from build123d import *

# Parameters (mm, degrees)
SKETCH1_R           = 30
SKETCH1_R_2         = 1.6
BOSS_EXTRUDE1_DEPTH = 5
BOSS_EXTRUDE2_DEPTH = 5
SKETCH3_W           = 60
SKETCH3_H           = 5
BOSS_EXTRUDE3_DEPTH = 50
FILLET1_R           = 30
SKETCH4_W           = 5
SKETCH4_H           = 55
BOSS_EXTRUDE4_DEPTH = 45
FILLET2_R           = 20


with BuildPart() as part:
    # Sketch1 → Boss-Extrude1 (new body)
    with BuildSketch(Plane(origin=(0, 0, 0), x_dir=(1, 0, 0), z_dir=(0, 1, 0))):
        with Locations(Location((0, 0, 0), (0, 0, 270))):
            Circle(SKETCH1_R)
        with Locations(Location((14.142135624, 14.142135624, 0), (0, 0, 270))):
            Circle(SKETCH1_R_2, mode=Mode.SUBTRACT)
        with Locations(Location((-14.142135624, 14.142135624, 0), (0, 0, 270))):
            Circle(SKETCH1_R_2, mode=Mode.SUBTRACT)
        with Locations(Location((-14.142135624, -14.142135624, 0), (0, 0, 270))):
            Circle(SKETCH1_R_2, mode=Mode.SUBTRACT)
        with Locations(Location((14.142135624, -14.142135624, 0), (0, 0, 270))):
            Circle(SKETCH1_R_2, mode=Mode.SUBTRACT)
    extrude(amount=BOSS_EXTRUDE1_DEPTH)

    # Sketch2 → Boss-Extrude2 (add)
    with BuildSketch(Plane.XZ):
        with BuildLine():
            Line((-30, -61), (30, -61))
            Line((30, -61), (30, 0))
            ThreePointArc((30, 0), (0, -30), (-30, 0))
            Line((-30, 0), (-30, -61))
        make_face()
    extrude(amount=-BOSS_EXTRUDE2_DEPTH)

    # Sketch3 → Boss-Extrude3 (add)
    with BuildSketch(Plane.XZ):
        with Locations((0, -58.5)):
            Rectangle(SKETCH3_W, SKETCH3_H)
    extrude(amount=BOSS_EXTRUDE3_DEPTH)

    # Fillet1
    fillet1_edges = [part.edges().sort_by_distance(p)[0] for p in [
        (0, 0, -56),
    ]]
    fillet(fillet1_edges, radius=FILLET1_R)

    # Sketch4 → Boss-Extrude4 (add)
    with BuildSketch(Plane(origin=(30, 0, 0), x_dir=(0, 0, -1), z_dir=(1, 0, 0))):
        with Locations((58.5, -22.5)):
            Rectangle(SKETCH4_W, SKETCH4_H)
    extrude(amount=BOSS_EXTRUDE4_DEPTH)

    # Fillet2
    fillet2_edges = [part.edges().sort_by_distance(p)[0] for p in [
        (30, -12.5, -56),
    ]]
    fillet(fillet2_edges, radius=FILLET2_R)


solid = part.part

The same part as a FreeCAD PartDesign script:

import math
import FreeCAD as App
import Part
import Sketcher

V = App.Vector
Q = App.Units.Quantity


def edges_at(feature, points):
    """Names of the edges that pass closest to the given points."""
    edges = feature.Shape.Edges
    near = lambda p: min(range(len(edges)), key=lambda i: edges[i].distToShape(Part.Vertex(*p))[0])
    return sorted({f"Edge{near(p) + 1}" for p in points})

doc = App.newDocument("Part")
params = doc.addObject("Spreadsheet::Sheet", "Params")
for row, (alias, value) in enumerate([
    ("sketch1_diameter", "60 mm"),
    ("sketch1_diameter2", "3.2 mm"),
    ("pad1_length", "5 mm"),
    ("sketch2_radius", "30 mm"),
    ("sketch2_height", "61 mm"),
    ("pad2_length", "5 mm"),
    ("sketch3_width", "60 mm"),
    ("sketch3_height", "5 mm"),
    ("pad3_length", "50 mm"),
    ("fillet_radius", "30 mm"),
    ("sketch4_width", "55 mm"),
    ("sketch4_height", "5 mm"),
    ("pad4_length", "45 mm"),
    ("fillet2_radius", "20 mm"),
], start=1):
    params.set(f"A{row}", alias)
    params.set(f"B{row}", "=" + value)
    params.setAlias(f"B{row}", alias)

body = doc.addObject("PartDesign::Body", "Body")

# Sketch on XZ plane
sketch1 = body.newObject("Sketcher::SketchObject", "Sketch")
sketch1.AttachmentSupport = (doc.getObject("XZ_Plane"), [""])
sketch1.MapMode = "FlatFace"
sketch1.addGeometry([
    Part.Circle(V(0, 0, 0), V(0, 0, 1), 30),  # 0
    Part.Circle(V(-14.1, -14.1, 0), V(0, 0, 1), 1.6),  # 1
    Part.Circle(V(-14.1, 14.1, 0), V(0, 0, 1), 1.6),  # 2
    Part.Circle(V(14.1, -14.1, 0), V(0, 0, 1), 1.6),  # 3
    Part.Circle(V(14.1, 14.1, 0), V(0, 0, 1), 1.6),  # 4
], False)
sketch1.addConstraint([
    Sketcher.Constraint("Coincident", 0, 3, -1, 1),
    Sketcher.Constraint("Equal", 1, 2),
    Sketcher.Constraint("Equal", 2, 3),
    Sketcher.Constraint("Equal", 3, 4),
    Sketcher.Constraint("Symmetric", 2, 3, 3, 3, -1, 1),
    Sketcher.Constraint("Symmetric", 1, 3, 4, 3, -1, 1),
    Sketcher.Constraint("Symmetric", 1, 3, 3, 3, -2),
    Sketcher.Constraint("Diameter", 0, Q("60 mm")),
    Sketcher.Constraint("Diameter", 1, Q("3.2 mm")),
    Sketcher.Constraint("DistanceY", 1, 3, 2, 3, Q("28.284271 mm")),
    Sketcher.Constraint("DistanceX", 1, 3, 3, 3, Q("28.284271 mm")),
])
sketch1.setExpression("Constraints[7]", "Params.sketch1_diameter")
sketch1.setExpression("Constraints[8]", "Params.sketch1_diameter2")
pad1 = body.newObject("PartDesign::Pad", "Pad")
pad1.Profile = sketch1
pad1.setExpression("Length", "Params.pad1_length")
pad1.Reversed = True

# Sketch on XZ plane
sketch2 = body.newObject("Sketcher::SketchObject", "Sketch001")
sketch2.AttachmentSupport = (doc.getObject("XZ_Plane"), [""])
sketch2.MapMode = "FlatFace"
sketch2.addGeometry([
    Part.LineSegment(V(-30, -61, 0), V(30, -61, 0)),
    Part.LineSegment(V(30, -61, 0), V(30, 0, 0)),
    Part.ArcOfCircle(Part.Circle(V(0, 0, 0), V(0, 0, 1), 30), math.radians(180), math.radians(360)),
    Part.LineSegment(V(-30, 0, 0), V(-30, -61, 0)),
], False)
sketch2.addConstraint([
    Sketcher.Constraint("Coincident", 0, 2, 1, 1),
    Sketcher.Constraint("Tangent", 1, 2, 2, 2),
    Sketcher.Constraint("Tangent", 2, 1, 3, 1),
    Sketcher.Constraint("Coincident", 3, 2, 0, 1),
    Sketcher.Constraint("Horizontal", 0),
    Sketcher.Constraint("Vertical", 1),
    Sketcher.Constraint("Vertical", 3),
    Sketcher.Constraint("Coincident", 2, 3, -1, 1),
    Sketcher.Constraint("Radius", 2, Q("30 mm")),
    Sketcher.Constraint("DistanceY", 1, 1, 1, 2, Q("61 mm")),
])
sketch2.setExpression("Constraints[8]", "Params.sketch2_radius")
sketch2.setExpression("Constraints[9]", "Params.sketch2_height")
pad2 = body.newObject("PartDesign::Pad", "Pad001")
pad2.Profile = sketch2
pad2.setExpression("Length", "Params.pad2_length")
pad2.Reversed = True

# Sketch on XZ plane
sketch3 = body.newObject("Sketcher::SketchObject", "Sketch002")
sketch3.AttachmentSupport = (doc.getObject("XZ_Plane"), [""])
sketch3.MapMode = "FlatFace"
sketch3.addGeometry([
    Part.LineSegment(V(-30, -56, 0), V(-30, -61, 0)),
    Part.LineSegment(V(-30, -61, 0), V(30, -61, 0)),
    Part.LineSegment(V(30, -61, 0), V(30, -56, 0)),
    Part.LineSegment(V(30, -56, 0), V(-30, -56, 0)),
], False)
sketch3.addConstraint([
    Sketcher.Constraint("Coincident", 0, 2, 1, 1),
    Sketcher.Constraint("Coincident", 1, 2, 2, 1),
    Sketcher.Constraint("Coincident", 2, 2, 3, 1),
    Sketcher.Constraint("Coincident", 3, 2, 0, 1),
    Sketcher.Constraint("Vertical", 0),
    Sketcher.Constraint("Horizontal", 1),
    Sketcher.Constraint("Vertical", 2),
    Sketcher.Constraint("Horizontal", 3),
    Sketcher.Constraint("DistanceX", 1, 1, 1, 2, Q("60 mm")),
    Sketcher.Constraint("DistanceY", 0, 2, 0, 1, Q("5 mm")),
    Sketcher.Constraint("DistanceX", 0, 2, -1, 1, Q("30 mm")),
    Sketcher.Constraint("DistanceY", 0, 2, -1, 1, Q("61 mm")),
])
sketch3.setExpression("Constraints[8]", "Params.sketch3_width")
sketch3.setExpression("Constraints[9]", "Params.sketch3_height")
pad3 = body.newObject("PartDesign::Pad", "Pad002")
pad3.Profile = sketch3
pad3.setExpression("Length", "Params.pad3_length")
doc.recompute()

fillet = body.newObject("PartDesign::Fillet", "Fillet")
fillet.Base = (pad3, edges_at(pad3, [(0, 0, -56)]))
fillet.setExpression("Radius", "Params.fillet_radius")

# Sketch on YZ plane
sketch4 = body.newObject("Sketcher::SketchObject", "Sketch003")
sketch4.AttachmentSupport = (doc.getObject("YZ_Plane"), [""])
sketch4.MapMode = "FlatFace"
sketch4.AttachmentOffset = App.Placement(V(0, 0, 30), App.Rotation())
sketch4.addGeometry([
    Part.LineSegment(V(5, -56, 0), V(-50, -56, 0)),
    Part.LineSegment(V(-50, -56, 0), V(-50, -61, 0)),
    Part.LineSegment(V(-50, -61, 0), V(5, -61, 0)),
    Part.LineSegment(V(5, -61, 0), V(5, -56, 0)),
], False)
sketch4.addConstraint([
    Sketcher.Constraint("Coincident", 0, 2, 1, 1),
    Sketcher.Constraint("Coincident", 1, 2, 2, 1),
    Sketcher.Constraint("Coincident", 2, 2, 3, 1),
    Sketcher.Constraint("Coincident", 3, 2, 0, 1),
    Sketcher.Constraint("Horizontal", 0),
    Sketcher.Constraint("Vertical", 1),
    Sketcher.Constraint("Horizontal", 2),
    Sketcher.Constraint("Vertical", 3),
    Sketcher.Constraint("DistanceX", 0, 2, 0, 1, Q("55 mm")),
    Sketcher.Constraint("DistanceY", 1, 2, 1, 1, Q("5 mm")),
    Sketcher.Constraint("DistanceX", 0, 2, -1, 1, Q("50 mm")),
    Sketcher.Constraint("DistanceY", 0, 2, -1, 1, Q("56 mm")),
])
sketch4.setExpression("Constraints[8]", "Params.sketch4_width")
sketch4.setExpression("Constraints[9]", "Params.sketch4_height")
pad4 = body.newObject("PartDesign::Pad", "Pad003")
pad4.Profile = sketch4
pad4.setExpression("Length", "Params.pad4_length")
doc.recompute()

fillet2 = body.newObject("PartDesign::Fillet", "Fillet001")
fillet2.Base = (pad4, edges_at(pad4, [(30, -12.5, -56)]))
fillet2.setExpression("Radius", "Params.fillet2_radius")

doc.recompute()
